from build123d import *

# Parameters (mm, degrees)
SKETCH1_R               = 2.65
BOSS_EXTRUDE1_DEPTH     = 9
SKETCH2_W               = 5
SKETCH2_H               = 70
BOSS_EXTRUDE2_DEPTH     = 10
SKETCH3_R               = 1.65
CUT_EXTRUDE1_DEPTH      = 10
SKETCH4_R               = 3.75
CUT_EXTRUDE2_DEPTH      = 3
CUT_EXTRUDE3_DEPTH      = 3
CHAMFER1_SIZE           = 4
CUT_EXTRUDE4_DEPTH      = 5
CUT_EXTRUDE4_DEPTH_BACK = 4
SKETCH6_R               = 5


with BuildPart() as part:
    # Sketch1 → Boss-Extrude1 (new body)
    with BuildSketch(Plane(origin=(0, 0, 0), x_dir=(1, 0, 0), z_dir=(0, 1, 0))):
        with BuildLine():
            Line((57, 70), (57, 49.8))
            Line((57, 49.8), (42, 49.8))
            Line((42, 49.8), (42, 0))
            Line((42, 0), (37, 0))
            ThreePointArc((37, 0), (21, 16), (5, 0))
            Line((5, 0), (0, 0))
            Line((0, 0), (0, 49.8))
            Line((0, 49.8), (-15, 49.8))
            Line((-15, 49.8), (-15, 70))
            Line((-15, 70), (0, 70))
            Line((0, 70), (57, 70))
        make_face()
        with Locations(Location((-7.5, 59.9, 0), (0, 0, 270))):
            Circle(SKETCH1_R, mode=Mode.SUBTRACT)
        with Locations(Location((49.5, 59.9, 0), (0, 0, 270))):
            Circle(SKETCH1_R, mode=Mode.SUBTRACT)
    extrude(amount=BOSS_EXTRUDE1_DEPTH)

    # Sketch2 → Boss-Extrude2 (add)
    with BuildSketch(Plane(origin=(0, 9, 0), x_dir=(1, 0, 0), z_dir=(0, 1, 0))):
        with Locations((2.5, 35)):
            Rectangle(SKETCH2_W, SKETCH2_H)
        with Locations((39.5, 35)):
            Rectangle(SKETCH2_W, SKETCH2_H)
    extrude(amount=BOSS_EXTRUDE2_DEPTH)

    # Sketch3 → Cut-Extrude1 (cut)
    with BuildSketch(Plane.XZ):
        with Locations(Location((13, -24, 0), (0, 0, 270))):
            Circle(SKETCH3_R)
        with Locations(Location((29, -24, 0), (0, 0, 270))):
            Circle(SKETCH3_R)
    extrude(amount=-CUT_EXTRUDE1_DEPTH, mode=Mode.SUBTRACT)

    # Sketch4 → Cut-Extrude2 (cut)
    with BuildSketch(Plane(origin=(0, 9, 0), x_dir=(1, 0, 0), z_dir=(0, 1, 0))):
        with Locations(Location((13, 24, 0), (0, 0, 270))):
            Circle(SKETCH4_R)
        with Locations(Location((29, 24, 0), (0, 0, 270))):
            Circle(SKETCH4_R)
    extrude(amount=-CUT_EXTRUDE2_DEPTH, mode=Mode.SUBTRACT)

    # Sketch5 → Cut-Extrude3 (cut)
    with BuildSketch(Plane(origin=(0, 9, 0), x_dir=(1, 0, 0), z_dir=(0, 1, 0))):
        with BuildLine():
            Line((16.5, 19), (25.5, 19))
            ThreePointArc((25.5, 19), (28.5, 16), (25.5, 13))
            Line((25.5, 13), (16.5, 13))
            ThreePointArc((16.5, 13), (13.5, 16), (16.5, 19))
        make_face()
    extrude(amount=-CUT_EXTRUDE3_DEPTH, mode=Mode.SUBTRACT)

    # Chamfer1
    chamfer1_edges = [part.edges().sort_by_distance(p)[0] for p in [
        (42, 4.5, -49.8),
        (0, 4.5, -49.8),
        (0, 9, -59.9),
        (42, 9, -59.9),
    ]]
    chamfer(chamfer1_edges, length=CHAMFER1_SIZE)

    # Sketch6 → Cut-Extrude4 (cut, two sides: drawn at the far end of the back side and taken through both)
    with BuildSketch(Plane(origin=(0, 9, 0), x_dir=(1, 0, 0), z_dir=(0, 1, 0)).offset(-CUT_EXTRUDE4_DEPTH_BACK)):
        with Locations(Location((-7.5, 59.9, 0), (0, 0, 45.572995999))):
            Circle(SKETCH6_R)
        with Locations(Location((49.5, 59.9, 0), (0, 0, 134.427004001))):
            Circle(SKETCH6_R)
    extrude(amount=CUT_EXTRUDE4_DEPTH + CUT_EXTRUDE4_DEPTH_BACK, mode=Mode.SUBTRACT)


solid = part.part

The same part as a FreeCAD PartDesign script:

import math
import FreeCAD as App
import Part
import Sketcher

V = App.Vector
Q = App.Units.Quantity


def edges_at(feature, points):
    """Names of the edges that pass closest to the given points."""
    edges = feature.Shape.Edges
    near = lambda p: min(range(len(edges)), key=lambda i: edges[i].distToShape(Part.Vertex(*p))[0])
    return sorted({f"Edge{near(p) + 1}" for p in points})

doc = App.newDocument("Part")
params = doc.addObject("Spreadsheet::Sheet", "Params")
for row, (alias, value) in enumerate([
    ("sketch1_radius", "16 mm"),
    ("sketch1_diameter", "5.3 mm"),
    ("sketch1_width", "72 mm"),
    ("sketch1_width2", "15 mm"),
    ("sketch1_height", "20.2 mm"),
    ("pad1_length", "9 mm"),
    ("sketch2_width", "5 mm"),
    ("sketch2_height", "70 mm"),
    ("pad2_length", "10 mm"),
    ("sketch3_diameter", "3.3 mm"),
    ("pocket1_length", "10 mm"),
    ("sketch4_diameter", "7.5 mm"),
    ("pocket2_length", "3 mm"),
    ("sketch5_radius", "3 mm"),
    ("sketch5_width", "9 mm"),
    ("pocket3_length", "3 mm"),
    ("chamfer_size", "4 mm"),
    ("sketch6_diameter", "10 mm"),
    ("pocket4_length", "5 mm"),
    ("pocket4_length2", "4 mm"),
], start=1):
    params.set(f"A{row}", alias)
    params.set(f"B{row}", "=" + value)
    params.setAlias(f"B{row}", alias)

body = doc.addObject("PartDesign::Body", "Body")

# Sketch on XZ plane
sketch1 = body.newObject("Sketcher::SketchObject", "Sketch")
sketch1.AttachmentSupport = (doc.getObject("XZ_Plane"), [""])
sketch1.MapMode = "FlatFace"
sketch1.addGeometry(Part.LineSegment(V(57, -49.8, 0), V(57, -70, 0)), False)
sketch1.addGeometry(Part.LineSegment(V(57, -70, 0), V(-15, -70, 0)), False)
sketch1.addGeometry(Part.LineSegment(V(-15, -70, 0), V(-15, -49.8, 0)), False)
sketch1.addGeometry(Part.LineSegment(V(-15, -49.8, 0), V(0, -49.8, 0)), False)
sketch1.addGeometry(Part.LineSegment(V(0, -49.8, 0), V(0, 0, 0)), False)
sketch1.addGeometry(Part.LineSegment(V(0, 0, 0), V(5, 0, 0)), False)
sketch1.addGeometry(Part.ArcOfCircle(Part.Circle(V(21, 0, 0), V(0, 0, 1), 16), math.radians(180), math.radians(360)), False)
sketch1.addGeometry(Part.LineSegment(V(37, 0, 0), V(42, 0, 0)), False)
sketch1.addGeometry(Part.LineSegment(V(42, 0, 0), V(42, -49.8, 0)), False)
sketch1.addGeometry(Part.LineSegment(V(42, -49.8, 0), V(57, -49.8, 0)), False)
sketch1.addGeometry(Part.Circle(V(49.5, -59.9, 0), V(0, 0, 1), 2.6), False)
sketch1.addGeometry(Part.Circle(V(-7.5, -59.9, 0), V(0, 0, 1), 2.6), False)
sketch1.addConstraint(Sketcher.Constraint("Coincident", 0, 2, 1, 1))
sketch1.addConstraint(Sketcher.Constraint("Coincident", 1, 2, 2, 1))
sketch1.addConstraint(Sketcher.Constraint("Coincident", 2, 2, 3, 1))
sketch1.addConstraint(Sketcher.Constraint("Coincident", 3, 2, 4, 1))
sketch1.addConstraint(Sketcher.Constraint("Coincident", 4, 2, 5, 1))
sketch1.addConstraint(Sketcher.Constraint("Coincident", 5, 2, 6, 1))
sketch1.addConstraint(Sketcher.Constraint("Coincident", 6, 2, 7, 1))
sketch1.addConstraint(Sketcher.Constraint("Coincident", 7, 2, 8, 1))
sketch1.addConstraint(Sketcher.Constraint("Coincident", 8, 2, 9, 1))
sketch1.addConstraint(Sketcher.Constraint("Coincident", 9, 2, 0, 1))
sketch1.addConstraint(Sketcher.Constraint("Vertical", 0))
sketch1.addConstraint(Sketcher.Constraint("Horizontal", 1))
sketch1.addConstraint(Sketcher.Constraint("Vertical", 2))
sketch1.addConstraint(Sketcher.Constraint("Horizontal", 3))
sketch1.addConstraint(Sketcher.Constraint("Vertical", 4))
sketch1.addConstraint(Sketcher.Constraint("Horizontal", 5))
sketch1.addConstraint(Sketcher.Constraint("Horizontal", 7))
sketch1.addConstraint(Sketcher.Constraint("Vertical", 8))
sketch1.addConstraint(Sketcher.Constraint("Horizontal", 9))
sketch1.addConstraint(Sketcher.Constraint("Coincident", 4, 2, -1, 1))
sketch1.addConstraint(Sketcher.Constraint("Equal", 10, 11))
sketch1.addConstraint(Sketcher.Constraint("PointOnObject", 6, 3, -1))
sketch1.addConstraint(Sketcher.Constraint("PointOnObject", 6, 2, -1))
sketch1.addConstraint(Sketcher.Constraint("Horizontal", 10, 3, 11, 3))
sketch1.addConstraint(Sketcher.Constraint("Horizontal", 3, 2, 8, 2))
sketch1.addConstraint(Sketcher.Constraint("Equal", 5, 7))
sketch1.addConstraint(Sketcher.Constraint("Equal", 3, 9))
sketch1.addConstraint(Sketcher.Constraint("Radius", 6, Q("16 mm")))
sketch1.addConstraint(Sketcher.Constraint("Diameter", 10, Q("5.3 mm")))
sketch1.addConstraint(Sketcher.Constraint("DistanceX", 1, 2, 1, 1, Q("72 mm")))
sketch1.addConstraint(Sketcher.Constraint("DistanceX", 3, 1, 3, 2, Q("15 mm")))
sketch1.addConstraint(Sketcher.Constraint("DistanceY", 0, 2, 0, 1, Q("20.2 mm")))
sketch1.addConstraint(Sketcher.Constraint("DistanceY", 4, 1, 4, 2, Q("49.8 mm")))
sketch1.addConstraint(Sketcher.Constraint("DistanceX", 11, 3, 10, 3, Q("57 mm")))
sketch1.addConstraint(Sketcher.Constraint("DistanceX", -1, 1, 10, 3, Q("49.5 mm")))
sketch1.addConstraint(Sketcher.Constraint("DistanceY", 10, 3, -1, 1, Q("59.9 mm")))
sketch1.setExpression("Constraints[27]", "Params.sketch1_radius")
sketch1.setExpression("Constraints[28]", "Params.sketch1_diameter")
sketch1.setExpression("Constraints[29]", "Params.sketch1_width")
sketch1.setExpression("Constraints[30]", "Params.sketch1_width2")
sketch1.setExpression("Constraints[31]", "Params.sketch1_height")
pad1 = body.newObject("PartDesign::Pad", "Pad")
pad1.Profile = sketch1
pad1.setExpression("Length", "Params.pad1_length")
pad1.Reversed = True

# Sketch on XZ plane
sketch2 = body.newObject("Sketcher::SketchObject", "Sketch001")
sketch2.AttachmentSupport = (doc.getObject("XZ_Plane"), [""])
sketch2.MapMode = "FlatFace"
sketch2.AttachmentOffset = App.Placement(V(0, 0, -9), App.Rotation())
sketch2.addGeometry(Part.LineSegment(V(0, -70, 0), V(0, 0, 0)), False)
sketch2.addGeometry(Part.LineSegment(V(0, 0, 0), V(5, 0, 0)), False)
sketch2.addGeometry(Part.LineSegment(V(5, 0, 0), V(5, -70, 0)), False)
sketch2.addGeometry(Part.LineSegment(V(5, -70, 0), V(0, -70, 0)), False)
sketch2.addGeometry(Part.LineSegment(V(37, -70, 0), V(37, 0, 0)), False)
sketch2.addGeometry(Part.LineSegment(V(37, 0, 0), V(42, 0, 0)), False)
sketch2.addGeometry(Part.LineSegment(V(42, 0, 0), V(42, -70, 0)), False)
sketch2.addGeometry(Part.LineSegment(V(42, -70, 0), V(37, -70, 0)), False)
sketch2.addConstraint(Sketcher.Constraint("Coincident", 0, 2, 1, 1))
sketch2.addConstraint(Sketcher.Constraint("Coincident", 1, 2, 2, 1))
sketch2.addConstraint(Sketcher.Constraint("Coincident", 2, 2, 3, 1))
sketch2.addConstraint(Sketcher.Constraint("Coincident", 3, 2, 0, 1))
sketch2.addConstraint(Sketcher.Constraint("Coincident", 4, 2, 5, 1))
sketch2.addConstraint(Sketcher.Constraint("Coincident", 5, 2, 6, 1))
sketch2.addConstraint(Sketcher.Constraint("Coincident", 6, 2, 7, 1))
sketch2.addConstraint(Sketcher.Constraint("Coincident", 7, 2, 4, 1))
sketch2.addConstraint(Sketcher.Constraint("Vertical", 0))
sketch2.addConstraint(Sketcher.Constraint("Horizontal", 1))
sketch2.addConstraint(Sketcher.Constraint("Vertical", 2))
sketch2.addConstraint(Sketcher.Constraint("Horizontal", 3))
sketch2.addConstraint(Sketcher.Constraint("Vertical", 4))
sketch2.addConstraint(Sketcher.Constraint("Horizontal", 5))
sketch2.addConstraint(Sketcher.Constraint("Vertical", 6))
sketch2.addConstraint(Sketcher.Constraint("Horizontal", 7))
sketch2.addConstraint(Sketcher.Constraint("Coincident", 0, 2, -1, 1))
sketch2.addConstraint(Sketcher.Constraint("PointOnObject", 4, 2, -1))
sketch2.addConstraint(Sketcher.Constraint("Horizontal", 3, 2, 6, 2))
sketch2.addConstraint(Sketcher.Constraint("Equal", 3, 5))
sketch2.addConstraint(Sketcher.Constraint("DistanceX", 1, 1, 1, 2, Q("5 mm")))
sketch2.addConstraint(Sketcher.Constraint("DistanceY", 0, 1, 0, 2, Q("70 mm")))
sketch2.addConstraint(Sketcher.Constraint("DistanceX", -1, 1, 4, 2, Q("37 mm")))
sketch2.setExpression("Constraints[20]", "Params.sketch2_width")
sketch2.setExpression("Constraints[21]", "Params.sketch2_height")
pad2 = body.newObject("PartDesign::Pad", "Pad001")
pad2.Profile = sketch2
pad2.setExpression("Length", "Params.pad2_length")
pad2.Reversed = True

# Sketch on XZ plane
sketch3 = body.newObject("Sketcher::SketchObject", "Sketch002")
sketch3.AttachmentSupport = (doc.getObject("XZ_Plane"), [""])
sketch3.MapMode = "FlatFace"
sketch3.addGeometry(Part.Circle(V(13, -24, 0), V(0, 0, 1), 1.6), False)
sketch3.addGeometry(Part.Circle(V(29, -24, 0), V(0, 0, 1), 1.6), False)
sketch3.addConstraint(Sketcher.Constraint("Equal", 0, 1))
sketch3.addConstraint(Sketcher.Constraint("Horizontal", 0, 3, 1, 3))
sketch3.addConstraint(Sketcher.Constraint("Diameter", 0, Q("3.3 mm")))
sketch3.addConstraint(Sketcher.Constraint("DistanceX", -1, 1, 0, 3, Q("13 mm")))
sketch3.addConstraint(Sketcher.Constraint("DistanceY", 0, 3, -1, 1, Q("24 mm")))
sketch3.addConstraint(Sketcher.Constraint("DistanceX", -1, 1, 1, 3, Q("29 mm")))
sketch3.setExpression("Constraints[2]", "Params.sketch3_diameter")
pocket1 = body.newObject("PartDesign::Pocket", "Pocket")
pocket1.Profile = sketch3
pocket1.setExpression("Length", "Params.pocket1_length")

# Sketch on XZ plane
sketch4 = body.newObject("Sketcher::SketchObject", "Sketch003")
sketch4.AttachmentSupport = (doc.getObject("XZ_Plane"), [""])
sketch4.MapMode = "FlatFace"
sketch4.AttachmentOffset = App.Placement(V(0, 0, -9), App.Rotation())
sketch4.addGeometry(Part.Circle(V(13, -24, 0), V(0, 0, 1), 3.8), False)
sketch4.addGeometry(Part.Circle(V(29, -24, 0), V(0, 0, 1), 3.8), False)
sketch4.addConstraint(Sketcher.Constraint("Equal", 0, 1))
sketch4.addConstraint(Sketcher.Constraint("Horizontal", 0, 3, 1, 3))
sketch4.addConstraint(Sketcher.Constraint("Diameter", 0, Q("7.5 mm")))
sketch4.addConstraint(Sketcher.Constraint("DistanceX", -1, 1, 0, 3, Q("13 mm")))
sketch4.addConstraint(Sketcher.Constraint("DistanceY", 0, 3, -1, 1, Q("24 mm")))
sketch4.addConstraint(Sketcher.Constraint("DistanceX", -1, 1, 1, 3, Q("29 mm")))
sketch4.setExpression("Constraints[2]", "Params.sketch4_diameter")
pocket2 = body.newObject("PartDesign::Pocket", "Pocket001")
pocket2.Profile = sketch4
pocket2.setExpression("Length", "Params.pocket2_length")
pocket2.Reversed = True

# Sketch on XZ plane
sketch5 = body.newObject("Sketcher::SketchObject", "Sketch004")
sketch5.AttachmentSupport = (doc.getObject("XZ_Plane"), [""])
sketch5.MapMode = "FlatFace"
sketch5.AttachmentOffset = App.Placement(V(0, 0, -9), App.Rotation())
sketch5.addGeometry(Part.LineSegment(V(25.5, -19, 0), V(16.5, -19, 0)), False)
sketch5.addGeometry(Part.ArcOfCircle(Part.Circle(V(16.5, -16, 0), V(0, 0, 1), 3), math.radians(90), math.radians(270)), False)
sketch5.addGeometry(Part.LineSegment(V(16.5, -13, 0), V(25.5, -13, 0)), False)
sketch5.addGeometry(Part.ArcOfCircle(Part.Circle(V(25.5, -16, 0), V(0, 0, 1), 3), math.radians(-90), math.radians(90)), False)
sketch5.addConstraint(Sketcher.Constraint("Tangent", 0, 2, 1, 2))
sketch5.addConstraint(Sketcher.Constraint("Tangent", 1, 1, 2, 1))
sketch5.addConstraint(Sketcher.Constraint("Tangent", 2, 2, 3, 2))
sketch5.addConstraint(Sketcher.Constraint("Tangent", 3, 1, 0, 1))
sketch5.addConstraint(Sketcher.Constraint("Horizontal", 0))
sketch5.addConstraint(Sketcher.Constraint("Horizontal", 2))
sketch5.addConstraint(Sketcher.Constraint("Radius", 1, Q("3 mm")))
sketch5.addConstraint(Sketcher.Constraint("DistanceX", 0, 2, 0, 1, Q("9 mm")))
sketch5.addConstraint(Sketcher.Constraint("DistanceY", 1, 3, -1, 1, Q("16 mm")))
sketch5.addConstraint(Sketcher.Constraint("DistanceX", -1, 1, 1, 3, Q("16.5 mm")))
sketch5.setExpression("Constraints[6]", "Params.sketch5_radius")
sketch5.setExpression("Constraints[7]", "Params.sketch5_width")
pocket3 = body.newObject("PartDesign::Pocket", "Pocket002")
pocket3.Profile = sketch5
pocket3.setExpression("Length", "Params.pocket3_length")
pocket3.Reversed = True
doc.recompute()

chamfer = body.newObject("PartDesign::Chamfer", "Chamfer")
chamfer.Base = (pocket3, edges_at(pocket3, [
    (42, 4.5, -49.8),
    (0, 4.5, -49.8),
    (0, 9, -59.9),
    (42, 9, -59.9),
]))
chamfer.setExpression("Size", "Params.chamfer_size")

# Sketch on XZ plane
sketch6 = body.newObject("Sketcher::SketchObject", "Sketch005")
sketch6.AttachmentSupport = (doc.getObject("XZ_Plane"), [""])
sketch6.MapMode = "FlatFace"
sketch6.AttachmentOffset = App.Placement(V(0, 0, -9), App.Rotation())
sketch6.addGeometry(Part.Circle(V(-8, -60, 0), V(0, 0, 1), 5), False)
sketch6.addGeometry(Part.Circle(V(50, -60, 0), V(0, 0, 1), 5), False)
sketch6.addConstraint(Sketcher.Constraint("Equal", 0, 1))
sketch6.addConstraint(Sketcher.Constraint("Horizontal", 0, 3, 1, 3))
sketch6.addConstraint(Sketcher.Constraint("Diameter", 0, Q("10 mm")))
sketch6.addConstraint(Sketcher.Constraint("DistanceX", 0, 3, 1, 3, Q("57 mm")))
sketch6.addConstraint(Sketcher.Constraint("DistanceX", 0, 3, -1, 1, Q("7.5 mm")))
sketch6.addConstraint(Sketcher.Constraint("DistanceY", 0, 3, -1, 1, Q("59.9 mm")))
sketch6.setExpression("Constraints[2]", "Params.sketch6_diameter")
pocket4 = body.newObject("PartDesign::Pocket", "Pocket003")
pocket4.Profile = sketch6
pocket4.Type = "TwoLengths"
pocket4.setExpression("Length", "Params.pocket4_length")
pocket4.setExpression("Length2", "Params.pocket4_length2")

doc.recompute()
